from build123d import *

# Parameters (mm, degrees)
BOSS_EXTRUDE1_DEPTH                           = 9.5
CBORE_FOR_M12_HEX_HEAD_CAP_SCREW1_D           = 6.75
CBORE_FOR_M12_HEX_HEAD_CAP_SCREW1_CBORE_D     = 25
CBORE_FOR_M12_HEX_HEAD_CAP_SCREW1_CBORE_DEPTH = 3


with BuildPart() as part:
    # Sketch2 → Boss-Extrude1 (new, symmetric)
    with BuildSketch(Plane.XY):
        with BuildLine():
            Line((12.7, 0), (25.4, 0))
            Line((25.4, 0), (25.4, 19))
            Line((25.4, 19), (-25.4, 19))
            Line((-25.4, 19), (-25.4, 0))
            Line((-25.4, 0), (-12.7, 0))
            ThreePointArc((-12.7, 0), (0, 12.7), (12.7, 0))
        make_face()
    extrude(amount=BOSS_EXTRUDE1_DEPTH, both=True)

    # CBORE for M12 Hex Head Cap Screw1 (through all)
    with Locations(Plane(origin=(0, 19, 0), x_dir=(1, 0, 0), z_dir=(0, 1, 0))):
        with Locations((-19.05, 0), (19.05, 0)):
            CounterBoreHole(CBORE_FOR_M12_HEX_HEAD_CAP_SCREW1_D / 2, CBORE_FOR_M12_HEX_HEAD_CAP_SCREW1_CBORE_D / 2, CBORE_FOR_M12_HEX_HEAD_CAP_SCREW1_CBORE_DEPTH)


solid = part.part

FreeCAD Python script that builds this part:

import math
import FreeCAD as App
import Part
import Sketcher

V = App.Vector
Q = App.Units.Quantity

doc = App.newDocument("Part")
body = doc.addObject("PartDesign::Body", "Body")

# Sketch on XY plane
sketch1 = body.newObject("Sketcher::SketchObject", "Sketch")
sketch1.AttachmentSupport = (doc.getObject("XY_Plane"), [""])
sketch1.MapMode = "FlatFace"
sketch1.addGeometry([
    Part.LineSegment(V(12.7, 0, 0), V(25.4, 0, 0)),  # 0
    Part.LineSegment(V(25.4, 0, 0), V(25.4, 19, 0)),  # 1
    Part.LineSegment(V(25.4, 19, 0), V(-25.4, 19, 0)),  # 2
    Part.LineSegment(V(-25.4, 19, 0), V(-25.4, 0, 0)),  # 3
    Part.LineSegment(V(-25.4, 0, 0), V(-12.7, 0, 0)),  # 4
    Part.ArcOfCircle(Part.Circle(V(0, 0, 0), V(0, 0, 1), 12.7), math.radians(0), math.radians(180)),  # 5
], False)
sketch1.addConstraint([
    Sketcher.Constraint("Coincident", 0, 2, 1, 1),
    Sketcher.Constraint("Coincident", 1, 2, 2, 1),
    Sketcher.Constraint("Coincident", 2, 2, 3, 1),
    Sketcher.Constraint("Coincident", 3, 2, 4, 1),
    Sketcher.Constraint("Coincident", 4, 2, 5, 2),
    Sketcher.Constraint("Coincident", 5, 1, 0, 1),
    Sketcher.Constraint("Horizontal", 0),
    Sketcher.Constraint("Vertical", 1),
    Sketcher.Constraint("Horizontal", 2),
    Sketcher.Constraint("Vertical", 3),
    Sketcher.Constraint("Horizontal", 4),
    Sketcher.Constraint("Coincident", 5, 3, -1, 1),
    Sketcher.Constraint("Symmetric", 0, 2, 3, 2, -1, 1),
    Sketcher.Constraint("PointOnObject", 0, 2, -1),
    Sketcher.Constraint("Radius", 5, Q("0.5 in")),
    Sketcher.Constraint("DistanceX", 2, 2, 2, 1, Q("2 in")),
    Sketcher.Constraint("DistanceY", 1, 1, 1, 2, 19.0),
])
pad1 = body.newObject("PartDesign::Pad", "Pad")
pad1.Profile = sketch1
pad1.Length = 19
pad1.Midplane = True

# Sketch on XZ plane
sketch2 = body.newObject("Sketcher::SketchObject", "Sketch001")
sketch2.AttachmentSupport = (doc.getObject("XZ_Plane"), [""])
sketch2.MapMode = "FlatFace"
sketch2.AttachmentOffset = App.Placement(V(0, 0, -19), App.Rotation())
sketch2.addGeometry([
    Part.Circle(V(-19.05, 0, 0), V(0, 0, 1), 3.375),
    Part.Circle(V(19.05, 0, 0), V(0, 0, 1), 3.375),
], False)
sketch2.addConstraint([
    Sketcher.Constraint("Equal", 0, 1),
    Sketcher.Constraint("Symmetric", 0, 3, 1, 3, -1, 1),
    Sketcher.Constraint("PointOnObject", 0, 3, -1),
    Sketcher.Constraint("DistanceX", 0, 3, 1, 3, Q("1.5 in")),
    Sketcher.Constraint("Diameter", 0, 6.75),
])
doc.recompute()
hole = body.newObject("PartDesign::Hole", "Hole")
hole.Profile = sketch2
hole.ThreadType = "None"
hole.Diameter = 6.75
hole.DepthType = "ThroughAll"
hole.HoleCutType = "Counterbore"
hole.HoleCutDiameter = 25
hole.HoleCutDepth = 3
hole.Reversed = True

doc.recompute()
